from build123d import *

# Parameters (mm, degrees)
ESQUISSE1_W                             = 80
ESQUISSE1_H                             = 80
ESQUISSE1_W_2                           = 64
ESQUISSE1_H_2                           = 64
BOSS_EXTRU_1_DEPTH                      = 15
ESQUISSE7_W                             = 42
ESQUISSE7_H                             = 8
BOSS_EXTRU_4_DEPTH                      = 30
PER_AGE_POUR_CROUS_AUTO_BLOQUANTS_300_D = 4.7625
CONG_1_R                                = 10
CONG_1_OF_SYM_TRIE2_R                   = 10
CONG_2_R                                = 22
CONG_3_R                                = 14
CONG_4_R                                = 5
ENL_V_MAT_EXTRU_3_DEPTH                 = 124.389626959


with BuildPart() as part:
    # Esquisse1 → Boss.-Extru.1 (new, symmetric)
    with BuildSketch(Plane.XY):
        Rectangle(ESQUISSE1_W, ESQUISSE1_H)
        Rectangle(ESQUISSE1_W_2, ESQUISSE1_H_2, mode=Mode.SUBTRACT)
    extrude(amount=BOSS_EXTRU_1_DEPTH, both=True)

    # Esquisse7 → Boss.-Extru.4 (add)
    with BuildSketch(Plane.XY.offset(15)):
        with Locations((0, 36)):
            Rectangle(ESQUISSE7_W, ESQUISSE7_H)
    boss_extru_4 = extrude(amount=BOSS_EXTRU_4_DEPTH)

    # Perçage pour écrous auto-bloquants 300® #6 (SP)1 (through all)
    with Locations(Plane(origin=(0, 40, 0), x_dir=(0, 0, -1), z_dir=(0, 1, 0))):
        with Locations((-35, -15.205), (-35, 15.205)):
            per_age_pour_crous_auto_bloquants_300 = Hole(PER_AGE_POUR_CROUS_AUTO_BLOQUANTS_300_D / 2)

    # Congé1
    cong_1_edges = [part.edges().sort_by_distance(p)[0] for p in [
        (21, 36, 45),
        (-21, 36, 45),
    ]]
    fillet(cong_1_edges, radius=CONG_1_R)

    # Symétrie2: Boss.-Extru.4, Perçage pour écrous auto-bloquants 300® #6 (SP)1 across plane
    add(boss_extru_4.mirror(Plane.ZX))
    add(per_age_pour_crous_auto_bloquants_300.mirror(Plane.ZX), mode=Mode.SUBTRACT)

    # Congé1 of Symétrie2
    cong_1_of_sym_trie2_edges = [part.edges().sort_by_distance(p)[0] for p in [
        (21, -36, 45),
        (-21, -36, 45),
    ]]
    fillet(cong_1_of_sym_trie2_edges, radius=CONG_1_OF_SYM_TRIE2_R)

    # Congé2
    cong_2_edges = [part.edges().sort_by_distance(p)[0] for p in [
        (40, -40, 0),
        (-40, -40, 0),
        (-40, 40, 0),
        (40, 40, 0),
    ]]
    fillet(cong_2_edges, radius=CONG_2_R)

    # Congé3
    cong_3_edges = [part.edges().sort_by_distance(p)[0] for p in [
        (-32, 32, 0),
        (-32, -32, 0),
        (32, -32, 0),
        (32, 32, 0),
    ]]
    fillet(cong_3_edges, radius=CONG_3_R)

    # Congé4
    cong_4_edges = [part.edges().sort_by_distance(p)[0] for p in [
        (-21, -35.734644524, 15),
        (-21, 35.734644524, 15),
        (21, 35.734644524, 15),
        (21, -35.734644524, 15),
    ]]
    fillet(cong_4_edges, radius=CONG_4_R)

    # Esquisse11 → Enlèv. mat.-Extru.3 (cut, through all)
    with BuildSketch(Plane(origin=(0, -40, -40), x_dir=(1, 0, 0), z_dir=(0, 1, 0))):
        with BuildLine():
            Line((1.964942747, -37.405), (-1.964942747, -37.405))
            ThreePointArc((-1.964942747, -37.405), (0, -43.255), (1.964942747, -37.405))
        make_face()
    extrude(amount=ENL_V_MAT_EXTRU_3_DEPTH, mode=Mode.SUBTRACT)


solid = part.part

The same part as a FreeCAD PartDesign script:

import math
import FreeCAD as App
import Part
import Sketcher
from FreeCAD import Vector


def edges_at(feature, points):
    """Names of the edges that pass closest to the given points."""
    edges = feature.Shape.Edges
    near = lambda p: min(range(len(edges)), key=lambda i: edges[i].distToShape(Part.Vertex(*p))[0])
    return sorted({f"Edge{near(p) + 1}" for p in points})


def add_polygon(sketch, points):
    """Adds a closed chain of lines whose ends are joined by coincident constraints."""
    first, n = sketch.GeometryCount, len(points)
    for a, b in zip(points, points[1:] + points[:1]):
        sketch.addGeometry(Part.LineSegment(App.Vector(*a, 0), App.Vector(*b, 0)), False)
    for i in range(n):
        sketch.addConstraint(Sketcher.Constraint("Coincident", first + i, 2, first + (i + 1) % n, 1))

doc = App.newDocument("Part")
body = doc.addObject("PartDesign::Body", "Body")

# Sketch on XY plane
sketch1 = body.newObject("Sketcher::SketchObject", "Sketch")
sketch1.AttachmentSupport = (doc.getObject("XY_Plane"), [""])
sketch1.MapMode = "FlatFace"
add_polygon(sketch1, [(-40, 40), (-40, -40), (40, -40), (40, 40)])  # lines 0-3
add_polygon(sketch1, [(32, -32), (-32, -32), (-32, 32), (32, 32)])  # lines 4-7
sketch1.addConstraint([
    Sketcher.Constraint("Vertical", 0),
    Sketcher.Constraint("Horizontal", 1),
    Sketcher.Constraint("Vertical", 2),
    Sketcher.Constraint("Horizontal", 3),
    Sketcher.Constraint("Horizontal", 4),
    Sketcher.Constraint("Vertical", 5),
    Sketcher.Constraint("Horizontal", 6),
    Sketcher.Constraint("Vertical", 7),
    Sketcher.Constraint("Symmetric", 0, 2, 2, 2, -1, 1),
    Sketcher.Constraint("Symmetric", 4, 2, 6, 2, -1, 1),
    Sketcher.Constraint("Equal", 3, 0),
    Sketcher.Constraint("Equal", 6, 5),
    Sketcher.Constraint("DistanceX", 1, 1, 1, 2, 80.0),
    Sketcher.Constraint("DistanceX", 4, 2, 4, 1, 64.0),
])
pad1 = body.newObject("PartDesign::Pad", "Pad")
pad1.Profile = sketch1
pad1.Length = 30
pad1.Midplane = True

# Sketch on XY plane
sketch2 = body.newObject("Sketcher::SketchObject", "Sketch001")
sketch2.AttachmentSupport = (doc.getObject("XY_Plane"), [""])
sketch2.MapMode = "FlatFace"
sketch2.AttachmentOffset = App.Placement(Vector(0, 0, 15), App.Rotation())
add_polygon(sketch2, [(-21, 40), (-21, 32), (21, 32), (21, 40)])  # lines 0-3
sketch2.addConstraint([
    Sketcher.Constraint("Vertical", 0),
    Sketcher.Constraint("Horizontal", 1),
    Sketcher.Constraint("Vertical", 2),
    Sketcher.Constraint("Horizontal", 3),
    Sketcher.Constraint("DistanceX", 1, 1, 1, 2, 42.0),
    Sketcher.Constraint("DistanceY", 0, 2, 0, 1, 8.0),
    Sketcher.Constraint("DistanceX", 0, 2, -1, 1, 21.0),
    Sketcher.Constraint("DistanceY", -1, 1, 0, 2, 32.0),
])
pad2 = body.newObject("PartDesign::Pad", "Pad001")
pad2.Profile = sketch2
pad2.Length = 30

# Sketch on XZ plane
sketch3 = body.newObject("Sketcher::SketchObject", "Sketch002")
sketch3.AttachmentSupport = (doc.getObject("XZ_Plane"), [""])
sketch3.MapMode = "FlatFace"
sketch3.AttachmentOffset = App.Placement(Vector(0, 0, -40), App.Rotation())
sketch3.addGeometry([
    Part.Circle(Vector(15.2, 35, 0), Vector(0, 0, 1), 2.4),
    Part.Circle(Vector(-15.2, 35, 0), Vector(0, 0, 1), 2.4),
], False)
sketch3.addConstraint([
    Sketcher.Constraint("Equal", 0, 1),
    Sketcher.Constraint("Symmetric", 0, 3, 1, 3, -2),
    Sketcher.Constraint("DistanceY", -1, 1, 0, 3, 35.0),
    Sketcher.Constraint("Diameter", 0, 4.7625),
    Sketcher.Constraint("DistanceX", 1, 3, 0, 3, 30.41),
])
doc.recompute()
hole = body.newObject("PartDesign::Hole", "Hole")
hole.Profile = sketch3
hole.ThreadType = "None"
hole.Diameter = 4.7625
hole.DepthType = "ThroughAll"
hole.Reversed = True
doc.recompute()

fillet = body.newObject("PartDesign::Fillet", "Fillet")
fillet.Base = (hole, edges_at(hole, [(21, 36, 45), (-21, 36, 45)]))
fillet.Radius = 10
doc.recompute()

mirrored = body.newObject("PartDesign::Mirrored", "Mirrored")
mirrored.Originals = [pad2, hole]
mirrored.MirrorPlane = (doc.getObject("XZ_Plane"), [""])
body.Tip = mirrored
doc.recompute()

fillet2 = body.newObject("PartDesign::Fillet", "Fillet001")
fillet2.Base = (mirrored, edges_at(mirrored, [(21, -36, 45), (-21, -36, 45)]))
fillet2.Radius = 10
doc.recompute()

fillet3 = body.newObject("PartDesign::Fillet", "Fillet002")
fillet3.Base = (fillet2, edges_at(fillet2, [
    (40, -40, 0),
    (-40, -40, 0),
    (-40, 40, 0),
    (40, 40, 0),
]))
fillet3.Radius = 22
doc.recompute()

fillet4 = body.newObject("PartDesign::Fillet", "Fillet003")
fillet4.Base = (fillet3, edges_at(fillet3, [
    (-32, 32, 0),
    (-32, -32, 0),
    (32, -32, 0),
    (32, 32, 0),
]))
fillet4.Radius = 14
doc.recompute()

fillet5 = body.newObject("PartDesign::Fillet", "Fillet004")
fillet5.Base = (fillet4, edges_at(fillet4, [
    (-21, -35.735, 15),
    (-21, 35.735, 15),
    (21, 35.735, 15),
    (21, -35.735, 15),
]))
fillet5.Radius = 5

# Sketch on XZ plane
sketch4 = body.newObject("Sketcher::SketchObject", "Sketch003")
sketch4.AttachmentSupport = (doc.getObject("XZ_Plane"), [""])
sketch4.MapMode = "FlatFace"
sketch4.AttachmentOffset = App.Placement(Vector(0, 0, 40), App.Rotation())
sketch4.addGeometry([
    Part.LineSegment(Vector(2, -2.6, 0), Vector(-2, -2.6, 0)),
    Part.ArcOfCircle(Part.Circle(Vector(0, 0, 0), Vector(0, 0, 1), 3.3), math.radians(-53), math.radians(233)),
], False)
sketch4.addConstraint([
    Sketcher.Constraint("Coincident", 0, 1, 1, 1),
    Sketcher.Constraint("Coincident", 1, 2, 0, 2),
    Sketcher.Constraint("Horizontal", 0),
    Sketcher.Constraint("Coincident", 1, 3, -1, 1),
    Sketcher.Constraint("Radius", 1, 3.255),
    Sketcher.Constraint("DistanceY", 0, 1, -1, 1, 2.595),
])
pocket1 = body.newObject("PartDesign::Pocket", "Pocket")
pocket1.Profile = sketch4
pocket1.Type = "ThroughAll"

doc.recompute()
